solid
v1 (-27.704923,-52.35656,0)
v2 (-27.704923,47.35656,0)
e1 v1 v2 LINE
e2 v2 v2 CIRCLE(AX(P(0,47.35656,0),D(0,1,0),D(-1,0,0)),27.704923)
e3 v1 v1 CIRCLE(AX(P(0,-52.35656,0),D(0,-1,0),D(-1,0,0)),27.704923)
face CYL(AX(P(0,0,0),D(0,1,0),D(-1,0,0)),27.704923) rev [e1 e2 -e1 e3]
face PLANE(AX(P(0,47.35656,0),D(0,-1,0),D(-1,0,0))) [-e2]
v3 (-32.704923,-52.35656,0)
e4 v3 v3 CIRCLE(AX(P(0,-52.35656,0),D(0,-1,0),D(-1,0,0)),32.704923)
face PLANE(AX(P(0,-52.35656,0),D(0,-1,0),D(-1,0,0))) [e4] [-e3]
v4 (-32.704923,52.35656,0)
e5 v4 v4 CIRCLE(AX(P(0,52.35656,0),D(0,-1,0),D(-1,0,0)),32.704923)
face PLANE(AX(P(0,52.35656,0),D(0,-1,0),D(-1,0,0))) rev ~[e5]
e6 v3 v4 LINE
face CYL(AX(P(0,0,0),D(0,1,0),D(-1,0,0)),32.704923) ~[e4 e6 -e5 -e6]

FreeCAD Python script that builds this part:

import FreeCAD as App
import Part
import Sketcher
from FreeCAD import Vector


def faces_at(feature, points):
    """Names of the faces that lie closest to the given points."""
    faces = feature.Shape.Faces
    near = lambda p: min(range(len(faces)), key=lambda i: faces[i].distToShape(Part.Vertex(*p))[0])
    return sorted({f"Face{near(p) + 1}" for p in points})

doc = App.newDocument("Part")
body = doc.addObject("PartDesign::Body", "Body")

# Sketch on XY plane
sketch1 = doc.addObject("Sketcher::SketchObject", "Sketch")
body.addObject(sketch1)
sketch1.AttachmentSupport = (doc.XY_Plane, [""])
sketch1.MapMode = "FlatFace"
sketch1.addGeometry(Part.LineSegment(Vector(-33, 52, 0), Vector(-33, -52, 0)), False)
sketch1.addGeometry(Part.LineSegment(Vector(-33, -52, 0), Vector(0, -52, 0)), False)
sketch1.addGeometry(Part.LineSegment(Vector(0, -52, 0), Vector(0, 52, 0)), False)
sketch1.addGeometry(Part.LineSegment(Vector(0, 52, 0), Vector(-33, 52, 0)), False)
sketch1.addConstraint(Sketcher.Constraint("Coincident", 0, 2, 1, 1))
sketch1.addConstraint(Sketcher.Constraint("Coincident", 1, 2, 2, 1))
sketch1.addConstraint(Sketcher.Constraint("Coincident", 2, 2, 3, 1))
sketch1.addConstraint(Sketcher.Constraint("Coincident", 3, 2, 0, 1))
sketch1.addConstraint(Sketcher.Constraint("Vertical", 0))
sketch1.addConstraint(Sketcher.Constraint("Horizontal", 1))
sketch1.addConstraint(Sketcher.Constraint("Vertical", 2))
sketch1.addConstraint(Sketcher.Constraint("Horizontal", 3))
sketch1.addConstraint(Sketcher.Constraint("Symmetric", 1, 2, 2, 2, -1, 1))
sketch1.addConstraint(Sketcher.Constraint("DistanceY", 0, 2, 0, 1, 104.71312))
sketch1.addConstraint(Sketcher.Constraint("DistanceX", 1, 1, 1, 2, 32.704923))
revolution = doc.addObject("PartDesign::Revolution", "Revolution")
body.addObject(revolution)
revolution.Profile = sketch1
revolution.ReferenceAxis = (sketch1, ["V_Axis"])
revolution.Angle = 360
doc.recompute()

thickness = doc.addObject("PartDesign::Thickness", "Thickness")
body.addObject(thickness)
thickness.Base = (revolution, faces_at(revolution, [(0, -52.357, 0)]))
thickness.Value = 5
thickness.Reversed = True
thickness.Join = "Arc"

doc.recompute()
